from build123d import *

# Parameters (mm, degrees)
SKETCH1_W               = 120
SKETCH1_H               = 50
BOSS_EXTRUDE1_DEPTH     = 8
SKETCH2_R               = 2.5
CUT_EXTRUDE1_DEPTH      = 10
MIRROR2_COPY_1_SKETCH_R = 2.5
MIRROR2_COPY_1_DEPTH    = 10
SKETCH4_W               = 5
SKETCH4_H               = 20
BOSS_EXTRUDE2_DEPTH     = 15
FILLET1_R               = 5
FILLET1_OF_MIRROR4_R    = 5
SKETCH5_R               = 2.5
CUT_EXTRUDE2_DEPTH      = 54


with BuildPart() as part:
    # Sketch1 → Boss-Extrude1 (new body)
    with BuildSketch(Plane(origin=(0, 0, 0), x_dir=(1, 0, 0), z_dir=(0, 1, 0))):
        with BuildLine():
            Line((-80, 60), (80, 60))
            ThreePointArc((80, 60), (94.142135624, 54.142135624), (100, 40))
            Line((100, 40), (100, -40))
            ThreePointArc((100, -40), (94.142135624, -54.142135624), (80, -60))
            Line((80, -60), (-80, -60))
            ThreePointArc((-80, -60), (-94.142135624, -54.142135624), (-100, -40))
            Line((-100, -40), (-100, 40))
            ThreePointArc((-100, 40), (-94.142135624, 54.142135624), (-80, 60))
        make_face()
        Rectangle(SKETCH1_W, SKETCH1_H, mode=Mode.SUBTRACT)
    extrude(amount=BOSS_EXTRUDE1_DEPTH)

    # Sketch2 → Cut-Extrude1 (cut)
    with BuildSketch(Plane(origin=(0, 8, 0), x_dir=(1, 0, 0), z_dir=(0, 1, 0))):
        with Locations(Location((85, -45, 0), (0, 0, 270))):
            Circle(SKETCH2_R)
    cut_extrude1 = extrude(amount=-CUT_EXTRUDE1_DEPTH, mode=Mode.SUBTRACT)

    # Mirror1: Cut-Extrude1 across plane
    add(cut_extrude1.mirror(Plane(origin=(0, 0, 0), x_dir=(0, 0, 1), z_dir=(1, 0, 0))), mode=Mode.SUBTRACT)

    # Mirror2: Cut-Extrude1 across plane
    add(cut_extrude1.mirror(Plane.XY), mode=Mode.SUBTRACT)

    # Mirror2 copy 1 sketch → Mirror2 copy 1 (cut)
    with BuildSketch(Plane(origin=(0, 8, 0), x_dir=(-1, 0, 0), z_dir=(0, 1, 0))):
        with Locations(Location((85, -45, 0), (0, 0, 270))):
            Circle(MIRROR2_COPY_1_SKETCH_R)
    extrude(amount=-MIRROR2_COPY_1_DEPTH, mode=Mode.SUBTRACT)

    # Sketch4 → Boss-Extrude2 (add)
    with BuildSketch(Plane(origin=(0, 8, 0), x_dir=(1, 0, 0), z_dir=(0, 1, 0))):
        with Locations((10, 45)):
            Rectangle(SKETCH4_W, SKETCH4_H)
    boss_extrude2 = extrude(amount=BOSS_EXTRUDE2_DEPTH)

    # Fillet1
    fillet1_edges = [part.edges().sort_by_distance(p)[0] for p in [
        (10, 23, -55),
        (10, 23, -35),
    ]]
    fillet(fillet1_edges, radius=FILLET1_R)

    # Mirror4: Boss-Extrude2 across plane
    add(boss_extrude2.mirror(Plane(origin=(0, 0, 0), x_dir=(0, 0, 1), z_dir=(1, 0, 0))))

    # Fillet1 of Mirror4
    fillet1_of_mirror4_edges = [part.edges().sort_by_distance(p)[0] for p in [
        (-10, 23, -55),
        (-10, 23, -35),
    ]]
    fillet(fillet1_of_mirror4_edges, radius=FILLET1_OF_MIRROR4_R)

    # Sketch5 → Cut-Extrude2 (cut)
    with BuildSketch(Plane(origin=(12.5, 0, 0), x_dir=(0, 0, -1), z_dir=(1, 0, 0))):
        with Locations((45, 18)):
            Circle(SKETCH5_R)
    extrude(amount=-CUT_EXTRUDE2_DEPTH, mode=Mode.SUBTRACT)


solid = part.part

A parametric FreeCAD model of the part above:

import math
import FreeCAD as App
import Part
import Sketcher
from FreeCAD import Vector
Q = App.Units.Quantity


def edges_at(feature, points):
    """Names of the edges that pass closest to the given points."""
    edges = feature.Shape.Edges
    near = lambda p: min(range(len(edges)), key=lambda i: edges[i].distToShape(Part.Vertex(*p))[0])
    return sorted({f"Edge{near(p) + 1}" for p in points})


def add_polygon(sketch, points):
    """Adds a closed chain of lines whose ends are joined by coincident constraints."""
    first, n = sketch.GeometryCount, len(points)
    for a, b in zip(points, points[1:] + points[:1]):
        sketch.addGeometry(Part.LineSegment(App.Vector(*a, 0), App.Vector(*b, 0)), False)
    for i in range(n):
        sketch.addConstraint(Sketcher.Constraint("Coincident", first + i, 2, first + (i + 1) % n, 1))

doc = App.newDocument("Part")
body = doc.addObject("PartDesign::Body", "Body")

# Sketch on XZ plane
sketch1 = doc.addObject("Sketcher::SketchObject", "Sketch")
body.addObject(sketch1)
sketch1.AttachmentSupport = (doc.XZ_Plane, [""])
sketch1.MapMode = "FlatFace"
sketch1.addGeometry(Part.LineSegment(Vector(80, -60, 0), Vector(-80, -60, 0)), False)  # 0
sketch1.addGeometry(Part.ArcOfCircle(Part.Circle(Vector(-80, -40, 0), Vector(0, 0, 1), 20), math.radians(180), math.radians(270)), False)  # 1
sketch1.addGeometry(Part.LineSegment(Vector(-100, -40, 0), Vector(-100, 40, 0)), False)  # 2
sketch1.addGeometry(Part.ArcOfCircle(Part.Circle(Vector(-80, 40, 0), Vector(0, 0, 1), 20), math.radians(90), math.radians(180)), False)  # 3
sketch1.addGeometry(Part.LineSegment(Vector(-80, 60, 0), Vector(80, 60, 0)), False)  # 4
sketch1.addGeometry(Part.ArcOfCircle(Part.Circle(Vector(80, 40, 0), Vector(0, 0, 1), 20), math.radians(0), math.radians(90)), False)  # 5
sketch1.addGeometry(Part.LineSegment(Vector(100, 40, 0), Vector(100, -40, 0)), False)  # 6
sketch1.addGeometry(Part.ArcOfCircle(Part.Circle(Vector(80, -40, 0), Vector(0, 0, 1), 20), math.radians(-90), math.radians(0)), False)  # 7
add_polygon(sketch1, [(-60, 25), (-60, -25), (60, -25), (60, 25)])  # lines 8-11
sketch1.addConstraint([
    Sketcher.Constraint("Tangent", 0, 2, 1, 2),
    Sketcher.Constraint("Tangent", 1, 1, 2, 1),
    Sketcher.Constraint("Tangent", 2, 2, 3, 2),
    Sketcher.Constraint("Tangent", 3, 1, 4, 1),
    Sketcher.Constraint("Tangent", 4, 2, 5, 2),
    Sketcher.Constraint("Tangent", 5, 1, 6, 1),
    Sketcher.Constraint("Tangent", 6, 2, 7, 2),
    Sketcher.Constraint("Tangent", 7, 1, 0, 1),
    Sketcher.Constraint("Horizontal", 0),
    Sketcher.Constraint("Vertical", 2),
    Sketcher.Constraint("Horizontal", 4),
    Sketcher.Constraint("Vertical", 6),
    Sketcher.Constraint("Vertical", 8),
    Sketcher.Constraint("Horizontal", 9),
    Sketcher.Constraint("Vertical", 10),
    Sketcher.Constraint("Horizontal", 11),
    Sketcher.Constraint("Equal", 1, 3),
    Sketcher.Constraint("Equal", 3, 5),
    Sketcher.Constraint("Equal", 5, 7),
    Sketcher.Constraint("Symmetric", 1, 3, 5, 3, -1, 1),
    Sketcher.Constraint("Symmetric", 8, 2, 10, 2, -1, 1),
    Sketcher.Constraint("Radius", 1, Q("20 mm")),
    Sketcher.Constraint("DistanceX", 0, 2, 0, 1, Q("160 mm")),
    Sketcher.Constraint("DistanceX", 9, 1, 9, 2, Q("120 mm")),
    Sketcher.Constraint("DistanceY", 2, 1, 2, 2, Q("80 mm")),
    Sketcher.Constraint("DistanceY", 8, 2, 8, 1, Q("50 mm")),
])
pad1 = doc.addObject("PartDesign::Pad", "Pad")
body.addObject(pad1)
pad1.Profile = sketch1
pad1.Length = 8
pad1.Reversed = True

# Sketch on XZ plane
sketch2 = doc.addObject("Sketcher::SketchObject", "Sketch001")
body.addObject(sketch2)
sketch2.AttachmentSupport = (doc.XZ_Plane, [""])
sketch2.MapMode = "FlatFace"
sketch2.AttachmentOffset = App.Placement(Vector(0, 0, -8), App.Rotation())
sketch2.addGeometry(Part.Circle(Vector(85, 45, 0), Vector(0, 0, 1), 2.5), False)
sketch2.addConstraint([
    Sketcher.Constraint("Diameter", 0, Q("5 mm")),
    Sketcher.Constraint("DistanceX", -1, 1, 0, 3, Q("85 mm")),
    Sketcher.Constraint("DistanceY", -1, 1, 0, 3, Q("45 mm")),
])
pocket1 = doc.addObject("PartDesign::Pocket", "Pocket")
body.addObject(pocket1)
pocket1.Profile = sketch2
pocket1.Length = 10
pocket1.Reversed = True
doc.recompute()

mirrored = doc.addObject("PartDesign::Mirrored", "Mirrored")
body.addObject(mirrored)
mirrored.Originals = [pocket1]
mirrored.MirrorPlane = (doc.YZ_Plane, [""])
body.Tip = mirrored
doc.recompute()

mirrored2 = doc.addObject("PartDesign::Mirrored", "Mirrored001")
body.addObject(mirrored2)
mirrored2.Originals = [pocket1]
mirrored2.MirrorPlane = (doc.XY_Plane, [""])
body.Tip = mirrored2

# Sketch on XZ plane
sketch3 = doc.addObject("Sketcher::SketchObject", "Sketch002")
body.addObject(sketch3)
sketch3.AttachmentSupport = (doc.XZ_Plane, [""])
sketch3.MapMode = "FlatFace"
sketch3.AttachmentOffset = App.Placement(Vector(0, 0, -8), App.Rotation())
sketch3.addGeometry(Part.Circle(Vector(-85, -45, 0), Vector(0, 0, 1), 2.5), False)
sketch3.addConstraint([
    Sketcher.Constraint("Diameter", 0, Q("5 mm")),
    Sketcher.Constraint("DistanceX", 0, 3, -1, 1, Q("85 mm")),
    Sketcher.Constraint("DistanceY", 0, 3, -1, 1, Q("45 mm")),
])
pocket2 = doc.addObject("PartDesign::Pocket", "Pocket001")
body.addObject(pocket2)
pocket2.Profile = sketch3
pocket2.Length = 10
pocket2.Reversed = True

# Sketch on XZ plane
sketch4 = doc.addObject("Sketcher::SketchObject", "Sketch003")
body.addObject(sketch4)
sketch4.AttachmentSupport = (doc.XZ_Plane, [""])
sketch4.MapMode = "FlatFace"
sketch4.AttachmentOffset = App.Placement(Vector(0, 0, -8), App.Rotation())
add_polygon(sketch4, [(8, -55), (8, -35), (12, -35), (12, -55)])  # lines 0-3
sketch4.addConstraint([
    Sketcher.Constraint("Vertical", 0),
    Sketcher.Constraint("Horizontal", 1),
    Sketcher.Constraint("Vertical", 2),
    Sketcher.Constraint("Horizontal", 3),
    Sketcher.Constraint("DistanceX", 1, 1, 1, 2, Q("5 mm")),
    Sketcher.Constraint("DistanceY", 0, 1, 0, 2, Q("20 mm")),
    Sketcher.Constraint("DistanceY", 0, 2, -1, 1, Q("35 mm")),
    Sketcher.Constraint("DistanceX", -1, 1, 0, 2, Q("7.5 mm")),
])
pad2 = doc.addObject("PartDesign::Pad", "Pad001")
body.addObject(pad2)
pad2.Profile = sketch4
pad2.Length = 15
pad2.Reversed = True
doc.recompute()

fillet = doc.addObject("PartDesign::Fillet", "Fillet")
body.addObject(fillet)
fillet.Base = (pad2, edges_at(pad2, [(10, 23, -55), (10, 23, -35)]))
fillet.Radius = 5
doc.recompute()

mirrored3 = doc.addObject("PartDesign::Mirrored", "Mirrored002")
body.addObject(mirrored3)
mirrored3.Originals = [pad2]
mirrored3.MirrorPlane = (doc.YZ_Plane, [""])
body.Tip = mirrored3
doc.recompute()

fillet2 = doc.addObject("PartDesign::Fillet", "Fillet001")
body.addObject(fillet2)
fillet2.Base = (mirrored3, edges_at(mirrored3, [(-10, 23, -55), (-10, 23, -35)]))
fillet2.Radius = 5

# Sketch on YZ plane
sketch5 = doc.addObject("Sketcher::SketchObject", "Sketch004")
body.addObject(sketch5)
sketch5.AttachmentSupport = (doc.YZ_Plane, [""])
sketch5.MapMode = "FlatFace"
sketch5.AttachmentOffset = App.Placement(Vector(0, 0, 12.5), App.Rotation())
sketch5.addGeometry(Part.Circle(Vector(18, -45, 0), Vector(0, 0, 1), 2.5), False)
sketch5.addConstraint([
    Sketcher.Constraint("Diameter", 0, Q("5 mm")),
    Sketcher.Constraint("DistanceX", -1, 1, 0, 3, Q("18 mm")),
    Sketcher.Constraint("DistanceY", 0, 3, -1, 1, Q("45 mm")),
])
pocket3 = doc.addObject("PartDesign::Pocket", "Pocket002")
body.addObject(pocket3)
pocket3.Profile = sketch5
pocket3.Length = 54

doc.recompute()
